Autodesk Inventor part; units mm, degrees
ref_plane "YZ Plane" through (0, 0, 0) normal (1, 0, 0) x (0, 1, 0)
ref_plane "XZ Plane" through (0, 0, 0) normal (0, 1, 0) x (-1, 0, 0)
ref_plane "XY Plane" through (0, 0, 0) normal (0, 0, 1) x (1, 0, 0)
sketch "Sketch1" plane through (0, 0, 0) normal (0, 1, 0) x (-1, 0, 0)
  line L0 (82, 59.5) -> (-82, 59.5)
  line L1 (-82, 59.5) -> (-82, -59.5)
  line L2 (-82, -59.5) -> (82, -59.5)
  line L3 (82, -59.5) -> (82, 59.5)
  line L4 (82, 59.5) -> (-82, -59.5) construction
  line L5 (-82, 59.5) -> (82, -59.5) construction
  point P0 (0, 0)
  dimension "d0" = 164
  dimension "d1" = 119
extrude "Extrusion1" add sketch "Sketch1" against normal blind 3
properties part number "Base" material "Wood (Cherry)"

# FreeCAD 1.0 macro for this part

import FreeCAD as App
import Part
import Sketcher
from FreeCAD import Vector

doc = App.newDocument("Part")
body = doc.addObject("PartDesign::Body", "Body")

# Sketch on XZ plane
sketch1 = doc.addObject("Sketcher::SketchObject", "Sketch")
body.addObject(sketch1)
sketch1.AttachmentSupport = (doc.XZ_Plane, [""])
sketch1.MapMode = "FlatFace"
sketch1.addGeometry(Part.LineSegment(Vector(-82, -60, 0), Vector(-82, 60, 0)), False)
sketch1.addGeometry(Part.LineSegment(Vector(-82, 60, 0), Vector(82, 60, 0)), False)
sketch1.addGeometry(Part.LineSegment(Vector(82, 60, 0), Vector(82, -60, 0)), False)
sketch1.addGeometry(Part.LineSegment(Vector(82, -60, 0), Vector(-82, -60, 0)), False)
sketch1.addConstraint(Sketcher.Constraint("Coincident", 0, 2, 1, 1))
sketch1.addConstraint(Sketcher.Constraint("Coincident", 1, 2, 2, 1))
sketch1.addConstraint(Sketcher.Constraint("Coincident", 2, 2, 3, 1))
sketch1.addConstraint(Sketcher.Constraint("Coincident", 3, 2, 0, 1))
sketch1.addConstraint(Sketcher.Constraint("Vertical", 0))
sketch1.addConstraint(Sketcher.Constraint("Horizontal", 1))
sketch1.addConstraint(Sketcher.Constraint("Vertical", 2))
sketch1.addConstraint(Sketcher.Constraint("Horizontal", 3))
sketch1.addConstraint(Sketcher.Constraint("Symmetric", 0, 2, 2, 2, -1, 1))
sketch1.addConstraint(Sketcher.Constraint("DistanceX", 1, 1, 1, 2, 164.0))
sketch1.addConstraint(Sketcher.Constraint("DistanceY", 0, 1, 0, 2, 119.0))
pad1 = doc.addObject("PartDesign::Pad", "Pad")
body.addObject(pad1)
pad1.Profile = sketch1
pad1.Length = 3

doc.recompute()
